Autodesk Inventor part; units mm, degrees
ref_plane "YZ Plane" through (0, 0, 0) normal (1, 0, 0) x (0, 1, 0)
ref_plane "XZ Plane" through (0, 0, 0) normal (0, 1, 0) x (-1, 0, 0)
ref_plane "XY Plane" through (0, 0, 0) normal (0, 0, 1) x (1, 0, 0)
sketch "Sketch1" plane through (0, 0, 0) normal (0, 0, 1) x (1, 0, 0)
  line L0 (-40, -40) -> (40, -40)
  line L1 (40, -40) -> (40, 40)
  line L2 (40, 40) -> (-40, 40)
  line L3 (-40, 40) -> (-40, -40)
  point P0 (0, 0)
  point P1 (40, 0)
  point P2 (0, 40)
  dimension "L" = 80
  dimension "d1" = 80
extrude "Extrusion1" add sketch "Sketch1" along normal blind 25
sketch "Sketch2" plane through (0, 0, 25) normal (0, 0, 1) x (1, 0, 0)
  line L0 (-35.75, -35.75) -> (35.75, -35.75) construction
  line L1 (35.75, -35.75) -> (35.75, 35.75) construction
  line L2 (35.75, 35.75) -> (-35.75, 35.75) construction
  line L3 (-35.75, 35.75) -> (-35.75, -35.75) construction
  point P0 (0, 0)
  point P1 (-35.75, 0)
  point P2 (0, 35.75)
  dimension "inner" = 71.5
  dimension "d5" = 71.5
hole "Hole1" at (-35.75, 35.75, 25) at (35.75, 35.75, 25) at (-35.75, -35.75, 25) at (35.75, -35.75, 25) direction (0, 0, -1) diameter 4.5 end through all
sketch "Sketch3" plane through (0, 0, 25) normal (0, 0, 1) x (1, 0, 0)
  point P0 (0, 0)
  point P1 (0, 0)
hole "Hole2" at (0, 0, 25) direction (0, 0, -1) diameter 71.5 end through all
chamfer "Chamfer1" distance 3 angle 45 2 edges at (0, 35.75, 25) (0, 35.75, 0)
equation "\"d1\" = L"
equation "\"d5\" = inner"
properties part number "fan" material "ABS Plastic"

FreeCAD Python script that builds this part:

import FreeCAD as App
import Part
import Sketcher

V = App.Vector
Q = App.Units.Quantity


def edges_at(feature, points):
    """Names of the edges that pass closest to the given points."""
    edges = feature.Shape.Edges
    near = lambda p: min(range(len(edges)), key=lambda i: edges[i].distToShape(Part.Vertex(*p))[0])
    return sorted({f"Edge{near(p) + 1}" for p in points})

doc = App.newDocument("Part")
body = doc.addObject("PartDesign::Body", "Body")

# Sketch on XY plane
sketch1 = doc.addObject("Sketcher::SketchObject", "Sketch")
body.addObject(sketch1)
sketch1.AttachmentSupport = (doc.XY_Plane, [""])
sketch1.MapMode = "FlatFace"
sketch1.addGeometry([
    Part.LineSegment(V(-40, 40, 0), V(-40, -40, 0)),
    Part.LineSegment(V(-40, -40, 0), V(40, -40, 0)),
    Part.LineSegment(V(40, -40, 0), V(40, 40, 0)),
    Part.LineSegment(V(40, 40, 0), V(-40, 40, 0)),
], False)
sketch1.addConstraint([
    Sketcher.Constraint("Coincident", 0, 2, 1, 1),
    Sketcher.Constraint("Coincident", 1, 2, 2, 1),
    Sketcher.Constraint("Coincident", 2, 2, 3, 1),
    Sketcher.Constraint("Coincident", 3, 2, 0, 1),
    Sketcher.Constraint("Vertical", 0),
    Sketcher.Constraint("Horizontal", 1),
    Sketcher.Constraint("Vertical", 2),
    Sketcher.Constraint("Horizontal", 3),
    Sketcher.Constraint("Symmetric", 0, 2, 2, 2, -1, 1),
    Sketcher.Constraint("Equal", 3, 0),
    Sketcher.Constraint("DistanceX", 1, 1, 1, 2, Q("80 mm")),
])
pad1 = doc.addObject("PartDesign::Pad", "Pad")
body.addObject(pad1)
pad1.Profile = sketch1
pad1.Length = 25

# Sketch on XY plane
sketch2 = doc.addObject("Sketcher::SketchObject", "Sketch001")
body.addObject(sketch2)
sketch2.AttachmentSupport = (doc.XY_Plane, [""])
sketch2.MapMode = "FlatFace"
sketch2.AttachmentOffset = App.Placement(V(0, 0, 25), App.Rotation())
sketch2.addGeometry([
    Part.Circle(V(-35.8, 35.8, 0), V(0, 0, 1), 2.2),
    Part.Circle(V(35.8, 35.8, 0), V(0, 0, 1), 2.2),
    Part.Circle(V(-35.8, -35.8, 0), V(0, 0, 1), 2.2),
    Part.Circle(V(35.8, -35.8, 0), V(0, 0, 1), 2.2),
], False)
sketch2.addConstraint([
    Sketcher.Constraint("Equal", 0, 1),
    Sketcher.Constraint("Equal", 1, 2),
    Sketcher.Constraint("Equal", 2, 3),
    Sketcher.Constraint("Symmetric", 1, 3, 2, 3, -1, 1),
    Sketcher.Constraint("Symmetric", 0, 3, 3, 3, -1, 1),
    Sketcher.Constraint("Symmetric", 0, 3, 1, 3, -2),
    Sketcher.Constraint("Diameter", 0, Q("4.5 mm")),
    Sketcher.Constraint("DistanceX", 0, 3, 1, 3, Q("71.5 mm")),
    Sketcher.Constraint("DistanceY", 2, 3, 0, 3, Q("71.5 mm")),
])
doc.recompute()
hole = doc.addObject("PartDesign::Hole", "Hole")
body.addObject(hole)
hole.Profile = sketch2
hole.ThreadType = "None"
hole.Diameter = 4.5
hole.DepthType = "ThroughAll"

# Sketch on XY plane
sketch3 = doc.addObject("Sketcher::SketchObject", "Sketch002")
body.addObject(sketch3)
sketch3.AttachmentSupport = (doc.XY_Plane, [""])
sketch3.MapMode = "FlatFace"
sketch3.AttachmentOffset = App.Placement(V(0, 0, 25), App.Rotation())
sketch3.addGeometry(Part.Circle(V(0, 0, 0), V(0, 0, 1), 36), False)
sketch3.addConstraint([
    Sketcher.Constraint("Coincident", 0, 3, -1, 1),
    Sketcher.Constraint("Diameter", 0, Q("71.5 mm")),
])
doc.recompute()
hole2 = doc.addObject("PartDesign::Hole", "Hole001")
body.addObject(hole2)
hole2.Profile = sketch3
hole2.ThreadType = "None"
hole2.Diameter = 71.5
hole2.DepthType = "ThroughAll"
doc.recompute()

chamfer = doc.addObject("PartDesign::Chamfer", "Chamfer")
body.addObject(chamfer)
chamfer.Base = (hole2, edges_at(hole2, [(0, 35.75, 25), (0, 35.75, 0)]))
chamfer.Size = 3

doc.recompute()
